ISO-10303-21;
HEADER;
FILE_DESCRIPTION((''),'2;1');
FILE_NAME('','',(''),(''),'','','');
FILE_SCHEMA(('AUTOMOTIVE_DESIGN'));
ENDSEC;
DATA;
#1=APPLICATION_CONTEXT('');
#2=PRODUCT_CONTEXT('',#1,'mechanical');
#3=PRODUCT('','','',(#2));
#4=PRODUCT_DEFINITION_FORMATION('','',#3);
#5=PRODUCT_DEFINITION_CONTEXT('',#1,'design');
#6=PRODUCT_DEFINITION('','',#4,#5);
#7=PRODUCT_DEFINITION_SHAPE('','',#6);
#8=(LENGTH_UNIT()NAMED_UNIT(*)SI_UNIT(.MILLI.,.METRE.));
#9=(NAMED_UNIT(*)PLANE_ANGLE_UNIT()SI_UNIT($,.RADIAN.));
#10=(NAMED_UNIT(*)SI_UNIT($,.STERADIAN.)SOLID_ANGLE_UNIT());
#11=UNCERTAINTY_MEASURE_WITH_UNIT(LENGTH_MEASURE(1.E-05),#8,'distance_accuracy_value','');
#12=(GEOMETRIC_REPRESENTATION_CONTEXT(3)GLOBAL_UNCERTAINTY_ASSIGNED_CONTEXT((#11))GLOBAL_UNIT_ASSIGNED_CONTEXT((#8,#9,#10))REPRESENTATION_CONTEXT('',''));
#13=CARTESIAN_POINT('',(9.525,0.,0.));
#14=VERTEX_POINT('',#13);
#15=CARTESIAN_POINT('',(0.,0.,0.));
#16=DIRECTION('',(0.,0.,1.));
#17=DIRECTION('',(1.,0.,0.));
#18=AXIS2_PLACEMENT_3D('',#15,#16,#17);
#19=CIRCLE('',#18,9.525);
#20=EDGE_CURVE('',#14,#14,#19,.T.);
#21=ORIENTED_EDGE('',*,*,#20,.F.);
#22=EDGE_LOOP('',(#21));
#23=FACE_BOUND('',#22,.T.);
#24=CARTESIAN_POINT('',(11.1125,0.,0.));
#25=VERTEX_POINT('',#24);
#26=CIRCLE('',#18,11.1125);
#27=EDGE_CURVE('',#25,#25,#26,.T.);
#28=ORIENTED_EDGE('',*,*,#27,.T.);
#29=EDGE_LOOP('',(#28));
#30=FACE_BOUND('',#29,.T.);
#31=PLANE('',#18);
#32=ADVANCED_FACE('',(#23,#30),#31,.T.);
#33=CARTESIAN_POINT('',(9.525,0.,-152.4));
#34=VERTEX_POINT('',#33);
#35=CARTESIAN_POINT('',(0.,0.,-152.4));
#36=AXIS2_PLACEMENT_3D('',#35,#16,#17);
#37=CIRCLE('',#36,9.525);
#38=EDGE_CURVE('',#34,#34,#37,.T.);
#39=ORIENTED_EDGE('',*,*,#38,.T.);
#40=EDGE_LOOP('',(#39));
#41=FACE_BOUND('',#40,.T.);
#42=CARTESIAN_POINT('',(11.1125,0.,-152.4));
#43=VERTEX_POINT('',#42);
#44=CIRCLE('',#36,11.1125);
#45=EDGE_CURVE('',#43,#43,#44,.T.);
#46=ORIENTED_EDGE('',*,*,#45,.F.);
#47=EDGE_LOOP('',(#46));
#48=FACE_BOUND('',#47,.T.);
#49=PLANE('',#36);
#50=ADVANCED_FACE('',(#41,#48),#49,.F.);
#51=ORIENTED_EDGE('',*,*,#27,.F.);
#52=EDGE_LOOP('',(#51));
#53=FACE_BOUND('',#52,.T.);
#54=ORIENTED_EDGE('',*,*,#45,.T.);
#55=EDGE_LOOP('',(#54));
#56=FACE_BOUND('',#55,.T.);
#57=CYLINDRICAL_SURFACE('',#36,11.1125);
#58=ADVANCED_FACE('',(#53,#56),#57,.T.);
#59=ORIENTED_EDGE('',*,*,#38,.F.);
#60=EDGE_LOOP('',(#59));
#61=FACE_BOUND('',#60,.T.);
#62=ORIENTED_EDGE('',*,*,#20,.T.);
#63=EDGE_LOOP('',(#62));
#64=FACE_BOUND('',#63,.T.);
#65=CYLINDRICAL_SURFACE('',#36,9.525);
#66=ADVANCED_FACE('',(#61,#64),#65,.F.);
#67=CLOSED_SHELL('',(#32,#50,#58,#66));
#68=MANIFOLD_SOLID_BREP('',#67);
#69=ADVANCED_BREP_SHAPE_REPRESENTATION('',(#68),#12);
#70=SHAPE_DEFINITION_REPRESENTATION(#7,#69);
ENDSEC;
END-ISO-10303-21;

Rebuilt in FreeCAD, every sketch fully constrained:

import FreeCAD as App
import Part
import Sketcher
from FreeCAD import Vector
Q = App.Units.Quantity

doc = App.newDocument("Part")
params = doc.addObject("Spreadsheet::Sheet", "Params")
for row, (alias, value) in enumerate([
    ("sketch1_diameter", "0.75 in"),
    ("sketch1_diameter2", "0.875 in"),
    ("pad1_length", "6 in"),
], start=1):
    params.set(f"A{row}", alias)
    params.set(f"B{row}", "=" + value)
    params.setAlias(f"B{row}", alias)

body = doc.addObject("PartDesign::Body", "Body")

# Sketch on XY plane
sketch1 = body.newObject("Sketcher::SketchObject", "Sketch")
sketch1.AttachmentSupport = (doc.getObject("XY_Plane"), [""])
sketch1.MapMode = "FlatFace"
sketch1.addGeometry([
    Part.Circle(Vector(0, 0, 0), Vector(0, 0, 1), 11),
    Part.Circle(Vector(0, 0, 0), Vector(0, 0, 1), 10),
], False)
sketch1.addConstraint([
    Sketcher.Constraint("Coincident", 0, 3, -1, 1),
    Sketcher.Constraint("Coincident", 1, 3, -1, 1),
    Sketcher.Constraint("Diameter", 1, Q("0.75 in")),
    Sketcher.Constraint("Diameter", 0, Q("0.875 in")),
])
sketch1.setExpression("Constraints[2]", "Params.sketch1_diameter")
sketch1.setExpression("Constraints[3]", "Params.sketch1_diameter2")
pad1 = body.newObject("PartDesign::Pad", "Pad")
pad1.Profile = sketch1
pad1.setExpression("Length", "Params.pad1_length")
pad1.Reversed = True

doc.recompute()
